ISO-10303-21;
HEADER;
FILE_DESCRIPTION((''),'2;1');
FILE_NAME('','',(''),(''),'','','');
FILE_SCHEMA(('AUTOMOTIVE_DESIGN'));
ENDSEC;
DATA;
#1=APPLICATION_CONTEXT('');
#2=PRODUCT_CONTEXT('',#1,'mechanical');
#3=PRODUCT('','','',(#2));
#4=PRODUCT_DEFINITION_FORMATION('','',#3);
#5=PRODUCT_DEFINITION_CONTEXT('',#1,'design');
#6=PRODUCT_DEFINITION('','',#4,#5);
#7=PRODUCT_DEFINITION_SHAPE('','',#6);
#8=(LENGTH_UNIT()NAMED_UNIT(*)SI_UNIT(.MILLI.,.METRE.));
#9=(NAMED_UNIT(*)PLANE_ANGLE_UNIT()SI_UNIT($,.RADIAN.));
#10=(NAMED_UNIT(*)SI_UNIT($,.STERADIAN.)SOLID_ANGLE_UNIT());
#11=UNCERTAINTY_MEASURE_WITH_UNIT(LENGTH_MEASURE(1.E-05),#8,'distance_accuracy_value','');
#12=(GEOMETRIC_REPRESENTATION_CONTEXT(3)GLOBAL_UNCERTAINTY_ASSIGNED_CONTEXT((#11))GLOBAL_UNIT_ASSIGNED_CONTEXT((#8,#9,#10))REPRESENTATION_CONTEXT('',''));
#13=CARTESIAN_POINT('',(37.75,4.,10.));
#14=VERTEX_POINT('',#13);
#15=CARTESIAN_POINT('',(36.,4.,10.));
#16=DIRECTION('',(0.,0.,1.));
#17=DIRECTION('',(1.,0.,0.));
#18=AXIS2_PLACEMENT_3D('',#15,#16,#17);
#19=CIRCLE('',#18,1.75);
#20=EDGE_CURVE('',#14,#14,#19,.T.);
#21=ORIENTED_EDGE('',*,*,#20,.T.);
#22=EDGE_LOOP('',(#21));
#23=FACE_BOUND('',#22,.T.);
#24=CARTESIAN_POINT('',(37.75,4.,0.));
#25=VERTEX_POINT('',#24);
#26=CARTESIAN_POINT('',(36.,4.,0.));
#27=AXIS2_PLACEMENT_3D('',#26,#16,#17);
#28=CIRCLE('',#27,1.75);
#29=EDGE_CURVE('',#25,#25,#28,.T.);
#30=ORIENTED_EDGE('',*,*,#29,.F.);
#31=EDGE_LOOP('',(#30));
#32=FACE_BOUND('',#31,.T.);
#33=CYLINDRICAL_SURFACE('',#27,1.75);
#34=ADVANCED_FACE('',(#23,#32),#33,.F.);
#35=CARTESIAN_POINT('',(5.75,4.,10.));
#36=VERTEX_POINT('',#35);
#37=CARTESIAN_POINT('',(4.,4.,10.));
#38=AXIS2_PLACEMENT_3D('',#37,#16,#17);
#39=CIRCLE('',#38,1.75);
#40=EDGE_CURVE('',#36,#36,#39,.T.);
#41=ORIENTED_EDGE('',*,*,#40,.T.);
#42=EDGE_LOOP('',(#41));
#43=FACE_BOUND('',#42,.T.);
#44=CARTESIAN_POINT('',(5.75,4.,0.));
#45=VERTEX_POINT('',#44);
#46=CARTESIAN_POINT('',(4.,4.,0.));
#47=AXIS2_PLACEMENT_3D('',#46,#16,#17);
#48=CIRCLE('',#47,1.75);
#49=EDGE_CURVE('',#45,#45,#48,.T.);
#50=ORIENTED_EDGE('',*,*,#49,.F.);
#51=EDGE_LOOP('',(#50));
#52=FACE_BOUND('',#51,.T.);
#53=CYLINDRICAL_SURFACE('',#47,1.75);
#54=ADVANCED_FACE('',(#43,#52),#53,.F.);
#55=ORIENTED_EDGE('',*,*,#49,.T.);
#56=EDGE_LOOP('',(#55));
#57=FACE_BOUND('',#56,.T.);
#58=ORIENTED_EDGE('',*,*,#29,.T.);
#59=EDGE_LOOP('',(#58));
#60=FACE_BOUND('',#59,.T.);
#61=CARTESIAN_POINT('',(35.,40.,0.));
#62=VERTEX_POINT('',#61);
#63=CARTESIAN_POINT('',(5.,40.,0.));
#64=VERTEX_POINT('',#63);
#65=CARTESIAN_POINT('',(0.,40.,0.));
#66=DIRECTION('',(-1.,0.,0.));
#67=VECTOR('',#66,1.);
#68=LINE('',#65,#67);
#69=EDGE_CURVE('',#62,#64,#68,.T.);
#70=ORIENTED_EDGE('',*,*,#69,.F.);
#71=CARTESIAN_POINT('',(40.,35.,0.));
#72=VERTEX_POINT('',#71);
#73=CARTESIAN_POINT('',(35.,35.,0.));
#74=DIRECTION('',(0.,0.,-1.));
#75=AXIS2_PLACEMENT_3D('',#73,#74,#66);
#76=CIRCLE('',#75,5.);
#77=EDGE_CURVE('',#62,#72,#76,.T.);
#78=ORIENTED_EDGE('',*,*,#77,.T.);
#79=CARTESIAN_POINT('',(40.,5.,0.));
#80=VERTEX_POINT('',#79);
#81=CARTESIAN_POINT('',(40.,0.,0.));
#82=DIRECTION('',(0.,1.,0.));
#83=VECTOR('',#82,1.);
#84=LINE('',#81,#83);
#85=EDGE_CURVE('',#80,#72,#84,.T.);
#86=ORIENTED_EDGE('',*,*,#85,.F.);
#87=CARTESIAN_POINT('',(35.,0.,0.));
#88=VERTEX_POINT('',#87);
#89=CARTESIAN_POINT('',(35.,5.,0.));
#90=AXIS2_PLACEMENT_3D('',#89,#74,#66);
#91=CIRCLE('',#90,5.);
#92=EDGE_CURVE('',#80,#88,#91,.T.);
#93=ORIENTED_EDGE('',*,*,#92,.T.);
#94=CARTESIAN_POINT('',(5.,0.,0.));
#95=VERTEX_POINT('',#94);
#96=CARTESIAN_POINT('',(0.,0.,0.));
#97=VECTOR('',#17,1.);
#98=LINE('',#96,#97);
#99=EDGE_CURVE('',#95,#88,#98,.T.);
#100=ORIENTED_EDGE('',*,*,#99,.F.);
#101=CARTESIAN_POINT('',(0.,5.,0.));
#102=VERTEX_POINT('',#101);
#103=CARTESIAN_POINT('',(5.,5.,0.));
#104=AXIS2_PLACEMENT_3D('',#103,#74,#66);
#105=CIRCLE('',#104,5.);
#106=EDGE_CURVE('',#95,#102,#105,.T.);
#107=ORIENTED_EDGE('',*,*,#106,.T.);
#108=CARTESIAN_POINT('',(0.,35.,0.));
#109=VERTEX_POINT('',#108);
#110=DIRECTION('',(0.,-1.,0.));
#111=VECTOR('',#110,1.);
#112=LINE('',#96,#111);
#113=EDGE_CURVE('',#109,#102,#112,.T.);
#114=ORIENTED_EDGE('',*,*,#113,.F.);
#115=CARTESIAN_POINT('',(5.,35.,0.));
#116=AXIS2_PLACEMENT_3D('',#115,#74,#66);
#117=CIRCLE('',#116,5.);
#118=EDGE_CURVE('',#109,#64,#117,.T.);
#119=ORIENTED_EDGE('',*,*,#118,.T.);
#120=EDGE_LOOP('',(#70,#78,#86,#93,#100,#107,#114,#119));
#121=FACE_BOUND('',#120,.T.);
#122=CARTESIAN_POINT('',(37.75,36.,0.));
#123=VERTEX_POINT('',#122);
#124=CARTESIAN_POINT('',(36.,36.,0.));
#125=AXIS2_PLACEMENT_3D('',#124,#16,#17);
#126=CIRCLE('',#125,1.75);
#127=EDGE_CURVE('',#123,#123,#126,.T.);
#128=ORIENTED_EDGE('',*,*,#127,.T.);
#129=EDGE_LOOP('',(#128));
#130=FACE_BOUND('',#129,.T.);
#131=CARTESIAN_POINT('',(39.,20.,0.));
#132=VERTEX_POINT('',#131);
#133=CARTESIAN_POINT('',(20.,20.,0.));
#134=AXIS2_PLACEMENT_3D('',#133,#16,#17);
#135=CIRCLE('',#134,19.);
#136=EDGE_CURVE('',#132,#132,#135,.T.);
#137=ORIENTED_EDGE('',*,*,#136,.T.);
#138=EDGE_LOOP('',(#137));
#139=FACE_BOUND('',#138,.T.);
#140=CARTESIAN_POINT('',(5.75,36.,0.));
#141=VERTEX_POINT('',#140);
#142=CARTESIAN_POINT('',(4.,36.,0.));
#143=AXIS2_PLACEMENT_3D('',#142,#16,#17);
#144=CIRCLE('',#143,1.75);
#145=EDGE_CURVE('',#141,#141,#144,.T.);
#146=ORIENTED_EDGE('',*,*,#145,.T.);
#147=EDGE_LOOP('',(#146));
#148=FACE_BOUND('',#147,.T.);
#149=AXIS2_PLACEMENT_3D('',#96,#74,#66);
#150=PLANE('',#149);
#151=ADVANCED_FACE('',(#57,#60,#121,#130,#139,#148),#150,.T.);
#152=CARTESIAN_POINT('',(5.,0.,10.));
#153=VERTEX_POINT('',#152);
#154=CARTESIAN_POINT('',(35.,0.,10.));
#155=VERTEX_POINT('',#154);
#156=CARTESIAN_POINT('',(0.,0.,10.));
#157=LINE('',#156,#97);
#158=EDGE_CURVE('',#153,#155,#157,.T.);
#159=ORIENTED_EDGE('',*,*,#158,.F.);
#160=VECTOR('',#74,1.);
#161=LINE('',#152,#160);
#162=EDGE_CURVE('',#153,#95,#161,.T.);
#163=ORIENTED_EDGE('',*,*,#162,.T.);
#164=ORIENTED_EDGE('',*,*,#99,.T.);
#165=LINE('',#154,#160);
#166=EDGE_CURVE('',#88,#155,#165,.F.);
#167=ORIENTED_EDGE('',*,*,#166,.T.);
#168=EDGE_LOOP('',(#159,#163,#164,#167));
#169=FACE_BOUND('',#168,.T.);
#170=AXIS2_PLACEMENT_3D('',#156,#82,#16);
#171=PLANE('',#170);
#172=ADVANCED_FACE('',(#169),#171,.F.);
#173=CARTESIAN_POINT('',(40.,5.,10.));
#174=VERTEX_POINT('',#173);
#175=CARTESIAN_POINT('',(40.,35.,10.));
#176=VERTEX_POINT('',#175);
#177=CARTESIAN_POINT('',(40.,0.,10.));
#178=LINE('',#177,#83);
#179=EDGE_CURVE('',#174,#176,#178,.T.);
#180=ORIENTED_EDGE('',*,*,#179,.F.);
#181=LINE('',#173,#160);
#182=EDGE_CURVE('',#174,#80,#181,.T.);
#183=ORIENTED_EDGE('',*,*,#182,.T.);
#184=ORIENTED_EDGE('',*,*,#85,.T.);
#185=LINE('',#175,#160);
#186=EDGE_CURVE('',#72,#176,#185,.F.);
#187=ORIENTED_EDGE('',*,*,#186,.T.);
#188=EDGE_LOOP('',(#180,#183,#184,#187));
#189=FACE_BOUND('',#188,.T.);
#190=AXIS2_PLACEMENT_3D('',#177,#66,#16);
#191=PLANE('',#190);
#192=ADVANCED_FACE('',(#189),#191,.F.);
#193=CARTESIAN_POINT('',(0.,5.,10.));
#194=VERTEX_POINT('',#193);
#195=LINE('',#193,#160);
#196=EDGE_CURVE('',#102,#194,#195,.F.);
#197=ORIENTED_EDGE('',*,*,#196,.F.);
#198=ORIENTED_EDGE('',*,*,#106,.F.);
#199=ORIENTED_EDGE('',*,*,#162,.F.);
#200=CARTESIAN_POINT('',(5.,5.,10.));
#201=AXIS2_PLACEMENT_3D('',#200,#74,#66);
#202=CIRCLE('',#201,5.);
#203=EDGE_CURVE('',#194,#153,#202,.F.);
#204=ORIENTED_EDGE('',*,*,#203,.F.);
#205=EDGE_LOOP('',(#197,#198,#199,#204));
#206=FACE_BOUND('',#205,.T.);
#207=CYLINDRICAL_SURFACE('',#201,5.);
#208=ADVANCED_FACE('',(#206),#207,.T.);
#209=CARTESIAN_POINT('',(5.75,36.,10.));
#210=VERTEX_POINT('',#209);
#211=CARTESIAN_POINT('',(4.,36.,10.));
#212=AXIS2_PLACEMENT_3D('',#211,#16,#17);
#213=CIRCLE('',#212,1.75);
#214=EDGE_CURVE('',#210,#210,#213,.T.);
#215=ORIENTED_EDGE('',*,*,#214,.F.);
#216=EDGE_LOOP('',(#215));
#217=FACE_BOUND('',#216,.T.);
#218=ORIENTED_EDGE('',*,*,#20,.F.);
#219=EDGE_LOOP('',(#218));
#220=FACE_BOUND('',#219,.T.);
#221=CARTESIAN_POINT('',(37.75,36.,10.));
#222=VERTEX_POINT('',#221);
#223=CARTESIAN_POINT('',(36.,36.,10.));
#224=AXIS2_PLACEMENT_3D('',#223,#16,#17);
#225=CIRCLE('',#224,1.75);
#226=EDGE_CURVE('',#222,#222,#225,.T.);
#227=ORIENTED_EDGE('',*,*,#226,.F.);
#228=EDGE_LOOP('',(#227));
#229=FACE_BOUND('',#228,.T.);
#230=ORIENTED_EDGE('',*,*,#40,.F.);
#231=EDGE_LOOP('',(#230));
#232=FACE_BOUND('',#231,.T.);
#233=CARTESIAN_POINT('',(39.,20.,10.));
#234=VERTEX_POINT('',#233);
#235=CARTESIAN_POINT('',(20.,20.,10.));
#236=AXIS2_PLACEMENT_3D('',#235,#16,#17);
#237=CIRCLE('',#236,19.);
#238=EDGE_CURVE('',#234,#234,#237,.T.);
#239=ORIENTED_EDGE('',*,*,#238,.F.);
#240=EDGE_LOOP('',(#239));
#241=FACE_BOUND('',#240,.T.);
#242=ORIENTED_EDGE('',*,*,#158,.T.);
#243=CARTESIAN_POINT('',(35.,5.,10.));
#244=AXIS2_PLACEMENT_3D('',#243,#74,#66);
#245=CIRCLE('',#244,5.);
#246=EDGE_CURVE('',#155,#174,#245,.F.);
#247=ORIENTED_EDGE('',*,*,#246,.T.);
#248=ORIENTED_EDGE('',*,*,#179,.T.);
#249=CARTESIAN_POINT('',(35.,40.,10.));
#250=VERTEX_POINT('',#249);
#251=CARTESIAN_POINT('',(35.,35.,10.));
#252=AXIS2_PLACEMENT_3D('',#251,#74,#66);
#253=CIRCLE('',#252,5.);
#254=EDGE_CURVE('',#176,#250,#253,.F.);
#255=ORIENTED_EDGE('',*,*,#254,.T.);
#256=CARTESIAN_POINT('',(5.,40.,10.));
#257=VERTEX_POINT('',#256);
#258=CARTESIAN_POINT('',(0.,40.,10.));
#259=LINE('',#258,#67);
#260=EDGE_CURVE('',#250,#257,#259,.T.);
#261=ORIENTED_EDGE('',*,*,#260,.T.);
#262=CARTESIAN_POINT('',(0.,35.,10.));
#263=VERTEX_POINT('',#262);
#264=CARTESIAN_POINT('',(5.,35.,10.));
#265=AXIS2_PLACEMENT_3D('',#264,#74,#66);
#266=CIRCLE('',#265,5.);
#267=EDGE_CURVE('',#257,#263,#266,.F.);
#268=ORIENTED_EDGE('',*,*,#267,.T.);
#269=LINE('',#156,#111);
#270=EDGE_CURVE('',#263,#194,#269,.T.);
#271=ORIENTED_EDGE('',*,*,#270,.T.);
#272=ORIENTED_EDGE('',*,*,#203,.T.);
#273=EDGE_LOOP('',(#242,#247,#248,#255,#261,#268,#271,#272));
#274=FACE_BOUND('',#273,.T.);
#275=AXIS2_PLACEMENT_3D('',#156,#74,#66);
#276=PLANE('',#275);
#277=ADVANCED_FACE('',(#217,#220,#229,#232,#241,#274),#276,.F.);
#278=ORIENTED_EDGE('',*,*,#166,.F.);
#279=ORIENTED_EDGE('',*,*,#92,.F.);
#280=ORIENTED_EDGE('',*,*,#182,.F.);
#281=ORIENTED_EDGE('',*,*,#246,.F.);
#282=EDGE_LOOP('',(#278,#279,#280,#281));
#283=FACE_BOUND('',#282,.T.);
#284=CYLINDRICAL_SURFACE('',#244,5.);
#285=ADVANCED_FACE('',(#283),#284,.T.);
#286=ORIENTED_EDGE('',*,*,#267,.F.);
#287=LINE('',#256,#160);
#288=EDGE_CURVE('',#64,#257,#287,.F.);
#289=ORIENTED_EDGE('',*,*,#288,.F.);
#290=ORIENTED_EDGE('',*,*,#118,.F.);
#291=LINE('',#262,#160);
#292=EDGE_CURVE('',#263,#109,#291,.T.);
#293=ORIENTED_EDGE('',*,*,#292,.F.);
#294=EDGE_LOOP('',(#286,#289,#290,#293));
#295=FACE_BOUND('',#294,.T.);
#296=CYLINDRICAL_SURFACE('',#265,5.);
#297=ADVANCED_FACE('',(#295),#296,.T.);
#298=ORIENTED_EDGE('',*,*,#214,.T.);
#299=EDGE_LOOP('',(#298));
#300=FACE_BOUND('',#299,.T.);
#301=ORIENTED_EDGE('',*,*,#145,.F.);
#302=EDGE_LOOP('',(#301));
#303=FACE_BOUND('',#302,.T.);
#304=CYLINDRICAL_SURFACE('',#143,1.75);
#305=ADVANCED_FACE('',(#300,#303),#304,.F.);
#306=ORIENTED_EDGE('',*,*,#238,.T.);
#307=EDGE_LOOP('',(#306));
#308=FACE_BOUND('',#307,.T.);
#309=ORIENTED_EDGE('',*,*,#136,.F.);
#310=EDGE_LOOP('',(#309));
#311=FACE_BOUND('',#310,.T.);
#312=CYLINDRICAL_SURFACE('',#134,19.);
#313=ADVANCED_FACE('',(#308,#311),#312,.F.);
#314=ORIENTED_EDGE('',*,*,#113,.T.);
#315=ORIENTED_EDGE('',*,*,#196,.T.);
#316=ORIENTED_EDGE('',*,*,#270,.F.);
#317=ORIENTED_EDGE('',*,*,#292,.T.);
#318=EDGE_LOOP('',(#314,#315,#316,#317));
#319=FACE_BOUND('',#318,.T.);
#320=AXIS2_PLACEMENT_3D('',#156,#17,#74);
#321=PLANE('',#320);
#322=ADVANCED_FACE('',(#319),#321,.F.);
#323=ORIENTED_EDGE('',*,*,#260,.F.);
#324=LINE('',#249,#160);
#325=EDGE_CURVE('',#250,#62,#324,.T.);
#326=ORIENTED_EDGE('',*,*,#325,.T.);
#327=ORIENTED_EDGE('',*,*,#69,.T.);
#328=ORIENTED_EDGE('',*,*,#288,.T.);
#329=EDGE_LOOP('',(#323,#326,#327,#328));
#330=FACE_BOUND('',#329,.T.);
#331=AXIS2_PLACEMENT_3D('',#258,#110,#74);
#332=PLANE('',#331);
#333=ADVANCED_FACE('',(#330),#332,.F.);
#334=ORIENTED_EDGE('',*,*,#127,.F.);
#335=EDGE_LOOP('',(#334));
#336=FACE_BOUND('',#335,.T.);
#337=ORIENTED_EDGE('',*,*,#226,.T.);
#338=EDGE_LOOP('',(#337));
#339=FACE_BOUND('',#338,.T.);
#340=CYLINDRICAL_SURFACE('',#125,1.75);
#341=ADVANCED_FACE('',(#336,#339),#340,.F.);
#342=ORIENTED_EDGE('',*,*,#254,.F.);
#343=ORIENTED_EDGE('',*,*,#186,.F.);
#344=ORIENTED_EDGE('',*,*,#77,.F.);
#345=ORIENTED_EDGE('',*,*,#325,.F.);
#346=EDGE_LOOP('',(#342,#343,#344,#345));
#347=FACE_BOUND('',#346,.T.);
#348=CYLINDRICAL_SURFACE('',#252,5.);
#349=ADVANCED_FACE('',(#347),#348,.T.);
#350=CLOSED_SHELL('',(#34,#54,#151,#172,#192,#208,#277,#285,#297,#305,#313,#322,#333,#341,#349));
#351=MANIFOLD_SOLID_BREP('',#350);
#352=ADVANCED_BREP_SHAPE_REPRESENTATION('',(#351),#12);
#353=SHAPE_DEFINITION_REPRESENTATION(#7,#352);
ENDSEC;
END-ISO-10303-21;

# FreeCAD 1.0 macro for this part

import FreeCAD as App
import Part
import Sketcher

V = App.Vector


def edges_at(feature, points):
    """Names of the edges that pass closest to the given points."""
    edges = feature.Shape.Edges
    near = lambda p: min(range(len(edges)), key=lambda i: edges[i].distToShape(Part.Vertex(*p))[0])
    return sorted({f"Edge{near(p) + 1}" for p in points})


def add_polygon(sketch, points):
    """Adds a closed chain of lines whose ends are joined by coincident constraints."""
    first, n = sketch.GeometryCount, len(points)
    for a, b in zip(points, points[1:] + points[:1]):
        sketch.addGeometry(Part.LineSegment(App.Vector(*a, 0), App.Vector(*b, 0)), False)
    for i in range(n):
        sketch.addConstraint(Sketcher.Constraint("Coincident", first + i, 2, first + (i + 1) % n, 1))

doc = App.newDocument("Part")
params = doc.addObject("Spreadsheet::Sheet", "Params")
for row, (alias, value) in enumerate([
    ("sketch1_width", "40 mm"),
    ("pad1_length", "10 mm"),
    ("sketch2_diameter", "38 mm"),
    ("sketch2_diameter2", "3.5 mm"),
    ("pocket1_length", "10 mm"),
    ("fillet_radius", "5 mm"),
], start=1):
    params.set(f"A{row}", alias)
    params.set(f"B{row}", "=" + value)
    params.setAlias(f"B{row}", alias)

body = doc.addObject("PartDesign::Body", "Body")

sketch1 = body.newObject("Sketcher::SketchObject", "Sketch")
sketch1.AttachmentSupport = (doc.getObject("XY_Plane"), [""])
sketch1.MapMode = "FlatFace"
add_polygon(sketch1, [(0, 40), (0, 0), (40, 0), (40, 40)])
sketch1.addConstraint(Sketcher.Constraint("Vertical", 0))
sketch1.addConstraint(Sketcher.Constraint("Horizontal", 1))
sketch1.addConstraint(Sketcher.Constraint("Vertical", 2))
sketch1.addConstraint(Sketcher.Constraint("Horizontal", 3))
sketch1.addConstraint(Sketcher.Constraint("Coincident", 0, 2, -1, 1))
sketch1.addConstraint(Sketcher.Constraint("Equal", 3, 0))
sketch1.addConstraint(Sketcher.Constraint("DistanceX", 1, 1, 1, 2, 40.0))
sketch1.setExpression("Constraints[10]", "Params.sketch1_width")
pad1 = body.newObject("PartDesign::Pad", "Pad")
pad1.Profile = sketch1
pad1.setExpression("Length", "Params.pad1_length")

sketch2 = body.newObject("Sketcher::SketchObject", "Sketch001")
sketch2.AttachmentSupport = (doc.getObject("XY_Plane"), [""])
sketch2.MapMode = "FlatFace"
sketch2.AttachmentOffset = App.Placement(V(0, 0, 10), App.Rotation())
sketch2.addGeometry(Part.Circle(V(20, 20, 0), V(0, 0, 1), 19), False)
sketch2.addGeometry(Part.Circle(V(4, 36, 0), V(0, 0, 1), 1.75), False)
sketch2.addGeometry(Part.Circle(V(4, 4, 0), V(0, 0, 1), 1.75), False)
sketch2.addGeometry(Part.Circle(V(36, 4, 0), V(0, 0, 1), 1.75), False)
sketch2.addGeometry(Part.Circle(V(36, 36, 0), V(0, 0, 1), 1.75), False)
sketch2.addConstraint(Sketcher.Constraint("Equal", 1, 2))
sketch2.addConstraint(Sketcher.Constraint("Equal", 2, 3))
sketch2.addConstraint(Sketcher.Constraint("Equal", 3, 4))
sketch2.addConstraint(Sketcher.Constraint("Horizontal", 2, 3, 3, 3))
sketch2.addConstraint(Sketcher.Constraint("Horizontal", 1, 3, 4, 3))
sketch2.addConstraint(Sketcher.Constraint("Vertical", 1, 3, 2, 3))
sketch2.addConstraint(Sketcher.Constraint("Vertical", 3, 3, 4, 3))
sketch2.addConstraint(Sketcher.Constraint("Diameter", 0, 38.0))
sketch2.addConstraint(Sketcher.Constraint("Diameter", 1, 3.5))
sketch2.addConstraint(Sketcher.Constraint("DistanceX", -1, 1, 0, 3, 20.0))
sketch2.addConstraint(Sketcher.Constraint("DistanceY", -1, 1, 0, 3, 20.0))
sketch2.addConstraint(Sketcher.Constraint("DistanceX", -1, 1, 1, 3, 4.0))
sketch2.addConstraint(Sketcher.Constraint("DistanceY", -1, 1, 1, 3, 36.0))
sketch2.addConstraint(Sketcher.Constraint("DistanceY", -1, 1, 2, 3, 4.0))
sketch2.addConstraint(Sketcher.Constraint("DistanceX", -1, 1, 3, 3, 36.0))
sketch2.setExpression("Constraints[7]", "Params.sketch2_diameter")
sketch2.setExpression("Constraints[8]", "Params.sketch2_diameter2")
pocket1 = body.newObject("PartDesign::Pocket", "Pocket")
pocket1.Profile = sketch2
pocket1.setExpression("Length", "Params.pocket1_length")
doc.recompute()

fillet = body.newObject("PartDesign::Fillet", "Fillet")
fillet.Base = (pocket1, edges_at(pocket1, [
    (0, 40, 5),
    (40, 40, 5),
    (40, 0, 5),
    (0, 0, 5),
]))
fillet.setExpression("Radius", "Params.fillet_radius")

doc.recompute()
